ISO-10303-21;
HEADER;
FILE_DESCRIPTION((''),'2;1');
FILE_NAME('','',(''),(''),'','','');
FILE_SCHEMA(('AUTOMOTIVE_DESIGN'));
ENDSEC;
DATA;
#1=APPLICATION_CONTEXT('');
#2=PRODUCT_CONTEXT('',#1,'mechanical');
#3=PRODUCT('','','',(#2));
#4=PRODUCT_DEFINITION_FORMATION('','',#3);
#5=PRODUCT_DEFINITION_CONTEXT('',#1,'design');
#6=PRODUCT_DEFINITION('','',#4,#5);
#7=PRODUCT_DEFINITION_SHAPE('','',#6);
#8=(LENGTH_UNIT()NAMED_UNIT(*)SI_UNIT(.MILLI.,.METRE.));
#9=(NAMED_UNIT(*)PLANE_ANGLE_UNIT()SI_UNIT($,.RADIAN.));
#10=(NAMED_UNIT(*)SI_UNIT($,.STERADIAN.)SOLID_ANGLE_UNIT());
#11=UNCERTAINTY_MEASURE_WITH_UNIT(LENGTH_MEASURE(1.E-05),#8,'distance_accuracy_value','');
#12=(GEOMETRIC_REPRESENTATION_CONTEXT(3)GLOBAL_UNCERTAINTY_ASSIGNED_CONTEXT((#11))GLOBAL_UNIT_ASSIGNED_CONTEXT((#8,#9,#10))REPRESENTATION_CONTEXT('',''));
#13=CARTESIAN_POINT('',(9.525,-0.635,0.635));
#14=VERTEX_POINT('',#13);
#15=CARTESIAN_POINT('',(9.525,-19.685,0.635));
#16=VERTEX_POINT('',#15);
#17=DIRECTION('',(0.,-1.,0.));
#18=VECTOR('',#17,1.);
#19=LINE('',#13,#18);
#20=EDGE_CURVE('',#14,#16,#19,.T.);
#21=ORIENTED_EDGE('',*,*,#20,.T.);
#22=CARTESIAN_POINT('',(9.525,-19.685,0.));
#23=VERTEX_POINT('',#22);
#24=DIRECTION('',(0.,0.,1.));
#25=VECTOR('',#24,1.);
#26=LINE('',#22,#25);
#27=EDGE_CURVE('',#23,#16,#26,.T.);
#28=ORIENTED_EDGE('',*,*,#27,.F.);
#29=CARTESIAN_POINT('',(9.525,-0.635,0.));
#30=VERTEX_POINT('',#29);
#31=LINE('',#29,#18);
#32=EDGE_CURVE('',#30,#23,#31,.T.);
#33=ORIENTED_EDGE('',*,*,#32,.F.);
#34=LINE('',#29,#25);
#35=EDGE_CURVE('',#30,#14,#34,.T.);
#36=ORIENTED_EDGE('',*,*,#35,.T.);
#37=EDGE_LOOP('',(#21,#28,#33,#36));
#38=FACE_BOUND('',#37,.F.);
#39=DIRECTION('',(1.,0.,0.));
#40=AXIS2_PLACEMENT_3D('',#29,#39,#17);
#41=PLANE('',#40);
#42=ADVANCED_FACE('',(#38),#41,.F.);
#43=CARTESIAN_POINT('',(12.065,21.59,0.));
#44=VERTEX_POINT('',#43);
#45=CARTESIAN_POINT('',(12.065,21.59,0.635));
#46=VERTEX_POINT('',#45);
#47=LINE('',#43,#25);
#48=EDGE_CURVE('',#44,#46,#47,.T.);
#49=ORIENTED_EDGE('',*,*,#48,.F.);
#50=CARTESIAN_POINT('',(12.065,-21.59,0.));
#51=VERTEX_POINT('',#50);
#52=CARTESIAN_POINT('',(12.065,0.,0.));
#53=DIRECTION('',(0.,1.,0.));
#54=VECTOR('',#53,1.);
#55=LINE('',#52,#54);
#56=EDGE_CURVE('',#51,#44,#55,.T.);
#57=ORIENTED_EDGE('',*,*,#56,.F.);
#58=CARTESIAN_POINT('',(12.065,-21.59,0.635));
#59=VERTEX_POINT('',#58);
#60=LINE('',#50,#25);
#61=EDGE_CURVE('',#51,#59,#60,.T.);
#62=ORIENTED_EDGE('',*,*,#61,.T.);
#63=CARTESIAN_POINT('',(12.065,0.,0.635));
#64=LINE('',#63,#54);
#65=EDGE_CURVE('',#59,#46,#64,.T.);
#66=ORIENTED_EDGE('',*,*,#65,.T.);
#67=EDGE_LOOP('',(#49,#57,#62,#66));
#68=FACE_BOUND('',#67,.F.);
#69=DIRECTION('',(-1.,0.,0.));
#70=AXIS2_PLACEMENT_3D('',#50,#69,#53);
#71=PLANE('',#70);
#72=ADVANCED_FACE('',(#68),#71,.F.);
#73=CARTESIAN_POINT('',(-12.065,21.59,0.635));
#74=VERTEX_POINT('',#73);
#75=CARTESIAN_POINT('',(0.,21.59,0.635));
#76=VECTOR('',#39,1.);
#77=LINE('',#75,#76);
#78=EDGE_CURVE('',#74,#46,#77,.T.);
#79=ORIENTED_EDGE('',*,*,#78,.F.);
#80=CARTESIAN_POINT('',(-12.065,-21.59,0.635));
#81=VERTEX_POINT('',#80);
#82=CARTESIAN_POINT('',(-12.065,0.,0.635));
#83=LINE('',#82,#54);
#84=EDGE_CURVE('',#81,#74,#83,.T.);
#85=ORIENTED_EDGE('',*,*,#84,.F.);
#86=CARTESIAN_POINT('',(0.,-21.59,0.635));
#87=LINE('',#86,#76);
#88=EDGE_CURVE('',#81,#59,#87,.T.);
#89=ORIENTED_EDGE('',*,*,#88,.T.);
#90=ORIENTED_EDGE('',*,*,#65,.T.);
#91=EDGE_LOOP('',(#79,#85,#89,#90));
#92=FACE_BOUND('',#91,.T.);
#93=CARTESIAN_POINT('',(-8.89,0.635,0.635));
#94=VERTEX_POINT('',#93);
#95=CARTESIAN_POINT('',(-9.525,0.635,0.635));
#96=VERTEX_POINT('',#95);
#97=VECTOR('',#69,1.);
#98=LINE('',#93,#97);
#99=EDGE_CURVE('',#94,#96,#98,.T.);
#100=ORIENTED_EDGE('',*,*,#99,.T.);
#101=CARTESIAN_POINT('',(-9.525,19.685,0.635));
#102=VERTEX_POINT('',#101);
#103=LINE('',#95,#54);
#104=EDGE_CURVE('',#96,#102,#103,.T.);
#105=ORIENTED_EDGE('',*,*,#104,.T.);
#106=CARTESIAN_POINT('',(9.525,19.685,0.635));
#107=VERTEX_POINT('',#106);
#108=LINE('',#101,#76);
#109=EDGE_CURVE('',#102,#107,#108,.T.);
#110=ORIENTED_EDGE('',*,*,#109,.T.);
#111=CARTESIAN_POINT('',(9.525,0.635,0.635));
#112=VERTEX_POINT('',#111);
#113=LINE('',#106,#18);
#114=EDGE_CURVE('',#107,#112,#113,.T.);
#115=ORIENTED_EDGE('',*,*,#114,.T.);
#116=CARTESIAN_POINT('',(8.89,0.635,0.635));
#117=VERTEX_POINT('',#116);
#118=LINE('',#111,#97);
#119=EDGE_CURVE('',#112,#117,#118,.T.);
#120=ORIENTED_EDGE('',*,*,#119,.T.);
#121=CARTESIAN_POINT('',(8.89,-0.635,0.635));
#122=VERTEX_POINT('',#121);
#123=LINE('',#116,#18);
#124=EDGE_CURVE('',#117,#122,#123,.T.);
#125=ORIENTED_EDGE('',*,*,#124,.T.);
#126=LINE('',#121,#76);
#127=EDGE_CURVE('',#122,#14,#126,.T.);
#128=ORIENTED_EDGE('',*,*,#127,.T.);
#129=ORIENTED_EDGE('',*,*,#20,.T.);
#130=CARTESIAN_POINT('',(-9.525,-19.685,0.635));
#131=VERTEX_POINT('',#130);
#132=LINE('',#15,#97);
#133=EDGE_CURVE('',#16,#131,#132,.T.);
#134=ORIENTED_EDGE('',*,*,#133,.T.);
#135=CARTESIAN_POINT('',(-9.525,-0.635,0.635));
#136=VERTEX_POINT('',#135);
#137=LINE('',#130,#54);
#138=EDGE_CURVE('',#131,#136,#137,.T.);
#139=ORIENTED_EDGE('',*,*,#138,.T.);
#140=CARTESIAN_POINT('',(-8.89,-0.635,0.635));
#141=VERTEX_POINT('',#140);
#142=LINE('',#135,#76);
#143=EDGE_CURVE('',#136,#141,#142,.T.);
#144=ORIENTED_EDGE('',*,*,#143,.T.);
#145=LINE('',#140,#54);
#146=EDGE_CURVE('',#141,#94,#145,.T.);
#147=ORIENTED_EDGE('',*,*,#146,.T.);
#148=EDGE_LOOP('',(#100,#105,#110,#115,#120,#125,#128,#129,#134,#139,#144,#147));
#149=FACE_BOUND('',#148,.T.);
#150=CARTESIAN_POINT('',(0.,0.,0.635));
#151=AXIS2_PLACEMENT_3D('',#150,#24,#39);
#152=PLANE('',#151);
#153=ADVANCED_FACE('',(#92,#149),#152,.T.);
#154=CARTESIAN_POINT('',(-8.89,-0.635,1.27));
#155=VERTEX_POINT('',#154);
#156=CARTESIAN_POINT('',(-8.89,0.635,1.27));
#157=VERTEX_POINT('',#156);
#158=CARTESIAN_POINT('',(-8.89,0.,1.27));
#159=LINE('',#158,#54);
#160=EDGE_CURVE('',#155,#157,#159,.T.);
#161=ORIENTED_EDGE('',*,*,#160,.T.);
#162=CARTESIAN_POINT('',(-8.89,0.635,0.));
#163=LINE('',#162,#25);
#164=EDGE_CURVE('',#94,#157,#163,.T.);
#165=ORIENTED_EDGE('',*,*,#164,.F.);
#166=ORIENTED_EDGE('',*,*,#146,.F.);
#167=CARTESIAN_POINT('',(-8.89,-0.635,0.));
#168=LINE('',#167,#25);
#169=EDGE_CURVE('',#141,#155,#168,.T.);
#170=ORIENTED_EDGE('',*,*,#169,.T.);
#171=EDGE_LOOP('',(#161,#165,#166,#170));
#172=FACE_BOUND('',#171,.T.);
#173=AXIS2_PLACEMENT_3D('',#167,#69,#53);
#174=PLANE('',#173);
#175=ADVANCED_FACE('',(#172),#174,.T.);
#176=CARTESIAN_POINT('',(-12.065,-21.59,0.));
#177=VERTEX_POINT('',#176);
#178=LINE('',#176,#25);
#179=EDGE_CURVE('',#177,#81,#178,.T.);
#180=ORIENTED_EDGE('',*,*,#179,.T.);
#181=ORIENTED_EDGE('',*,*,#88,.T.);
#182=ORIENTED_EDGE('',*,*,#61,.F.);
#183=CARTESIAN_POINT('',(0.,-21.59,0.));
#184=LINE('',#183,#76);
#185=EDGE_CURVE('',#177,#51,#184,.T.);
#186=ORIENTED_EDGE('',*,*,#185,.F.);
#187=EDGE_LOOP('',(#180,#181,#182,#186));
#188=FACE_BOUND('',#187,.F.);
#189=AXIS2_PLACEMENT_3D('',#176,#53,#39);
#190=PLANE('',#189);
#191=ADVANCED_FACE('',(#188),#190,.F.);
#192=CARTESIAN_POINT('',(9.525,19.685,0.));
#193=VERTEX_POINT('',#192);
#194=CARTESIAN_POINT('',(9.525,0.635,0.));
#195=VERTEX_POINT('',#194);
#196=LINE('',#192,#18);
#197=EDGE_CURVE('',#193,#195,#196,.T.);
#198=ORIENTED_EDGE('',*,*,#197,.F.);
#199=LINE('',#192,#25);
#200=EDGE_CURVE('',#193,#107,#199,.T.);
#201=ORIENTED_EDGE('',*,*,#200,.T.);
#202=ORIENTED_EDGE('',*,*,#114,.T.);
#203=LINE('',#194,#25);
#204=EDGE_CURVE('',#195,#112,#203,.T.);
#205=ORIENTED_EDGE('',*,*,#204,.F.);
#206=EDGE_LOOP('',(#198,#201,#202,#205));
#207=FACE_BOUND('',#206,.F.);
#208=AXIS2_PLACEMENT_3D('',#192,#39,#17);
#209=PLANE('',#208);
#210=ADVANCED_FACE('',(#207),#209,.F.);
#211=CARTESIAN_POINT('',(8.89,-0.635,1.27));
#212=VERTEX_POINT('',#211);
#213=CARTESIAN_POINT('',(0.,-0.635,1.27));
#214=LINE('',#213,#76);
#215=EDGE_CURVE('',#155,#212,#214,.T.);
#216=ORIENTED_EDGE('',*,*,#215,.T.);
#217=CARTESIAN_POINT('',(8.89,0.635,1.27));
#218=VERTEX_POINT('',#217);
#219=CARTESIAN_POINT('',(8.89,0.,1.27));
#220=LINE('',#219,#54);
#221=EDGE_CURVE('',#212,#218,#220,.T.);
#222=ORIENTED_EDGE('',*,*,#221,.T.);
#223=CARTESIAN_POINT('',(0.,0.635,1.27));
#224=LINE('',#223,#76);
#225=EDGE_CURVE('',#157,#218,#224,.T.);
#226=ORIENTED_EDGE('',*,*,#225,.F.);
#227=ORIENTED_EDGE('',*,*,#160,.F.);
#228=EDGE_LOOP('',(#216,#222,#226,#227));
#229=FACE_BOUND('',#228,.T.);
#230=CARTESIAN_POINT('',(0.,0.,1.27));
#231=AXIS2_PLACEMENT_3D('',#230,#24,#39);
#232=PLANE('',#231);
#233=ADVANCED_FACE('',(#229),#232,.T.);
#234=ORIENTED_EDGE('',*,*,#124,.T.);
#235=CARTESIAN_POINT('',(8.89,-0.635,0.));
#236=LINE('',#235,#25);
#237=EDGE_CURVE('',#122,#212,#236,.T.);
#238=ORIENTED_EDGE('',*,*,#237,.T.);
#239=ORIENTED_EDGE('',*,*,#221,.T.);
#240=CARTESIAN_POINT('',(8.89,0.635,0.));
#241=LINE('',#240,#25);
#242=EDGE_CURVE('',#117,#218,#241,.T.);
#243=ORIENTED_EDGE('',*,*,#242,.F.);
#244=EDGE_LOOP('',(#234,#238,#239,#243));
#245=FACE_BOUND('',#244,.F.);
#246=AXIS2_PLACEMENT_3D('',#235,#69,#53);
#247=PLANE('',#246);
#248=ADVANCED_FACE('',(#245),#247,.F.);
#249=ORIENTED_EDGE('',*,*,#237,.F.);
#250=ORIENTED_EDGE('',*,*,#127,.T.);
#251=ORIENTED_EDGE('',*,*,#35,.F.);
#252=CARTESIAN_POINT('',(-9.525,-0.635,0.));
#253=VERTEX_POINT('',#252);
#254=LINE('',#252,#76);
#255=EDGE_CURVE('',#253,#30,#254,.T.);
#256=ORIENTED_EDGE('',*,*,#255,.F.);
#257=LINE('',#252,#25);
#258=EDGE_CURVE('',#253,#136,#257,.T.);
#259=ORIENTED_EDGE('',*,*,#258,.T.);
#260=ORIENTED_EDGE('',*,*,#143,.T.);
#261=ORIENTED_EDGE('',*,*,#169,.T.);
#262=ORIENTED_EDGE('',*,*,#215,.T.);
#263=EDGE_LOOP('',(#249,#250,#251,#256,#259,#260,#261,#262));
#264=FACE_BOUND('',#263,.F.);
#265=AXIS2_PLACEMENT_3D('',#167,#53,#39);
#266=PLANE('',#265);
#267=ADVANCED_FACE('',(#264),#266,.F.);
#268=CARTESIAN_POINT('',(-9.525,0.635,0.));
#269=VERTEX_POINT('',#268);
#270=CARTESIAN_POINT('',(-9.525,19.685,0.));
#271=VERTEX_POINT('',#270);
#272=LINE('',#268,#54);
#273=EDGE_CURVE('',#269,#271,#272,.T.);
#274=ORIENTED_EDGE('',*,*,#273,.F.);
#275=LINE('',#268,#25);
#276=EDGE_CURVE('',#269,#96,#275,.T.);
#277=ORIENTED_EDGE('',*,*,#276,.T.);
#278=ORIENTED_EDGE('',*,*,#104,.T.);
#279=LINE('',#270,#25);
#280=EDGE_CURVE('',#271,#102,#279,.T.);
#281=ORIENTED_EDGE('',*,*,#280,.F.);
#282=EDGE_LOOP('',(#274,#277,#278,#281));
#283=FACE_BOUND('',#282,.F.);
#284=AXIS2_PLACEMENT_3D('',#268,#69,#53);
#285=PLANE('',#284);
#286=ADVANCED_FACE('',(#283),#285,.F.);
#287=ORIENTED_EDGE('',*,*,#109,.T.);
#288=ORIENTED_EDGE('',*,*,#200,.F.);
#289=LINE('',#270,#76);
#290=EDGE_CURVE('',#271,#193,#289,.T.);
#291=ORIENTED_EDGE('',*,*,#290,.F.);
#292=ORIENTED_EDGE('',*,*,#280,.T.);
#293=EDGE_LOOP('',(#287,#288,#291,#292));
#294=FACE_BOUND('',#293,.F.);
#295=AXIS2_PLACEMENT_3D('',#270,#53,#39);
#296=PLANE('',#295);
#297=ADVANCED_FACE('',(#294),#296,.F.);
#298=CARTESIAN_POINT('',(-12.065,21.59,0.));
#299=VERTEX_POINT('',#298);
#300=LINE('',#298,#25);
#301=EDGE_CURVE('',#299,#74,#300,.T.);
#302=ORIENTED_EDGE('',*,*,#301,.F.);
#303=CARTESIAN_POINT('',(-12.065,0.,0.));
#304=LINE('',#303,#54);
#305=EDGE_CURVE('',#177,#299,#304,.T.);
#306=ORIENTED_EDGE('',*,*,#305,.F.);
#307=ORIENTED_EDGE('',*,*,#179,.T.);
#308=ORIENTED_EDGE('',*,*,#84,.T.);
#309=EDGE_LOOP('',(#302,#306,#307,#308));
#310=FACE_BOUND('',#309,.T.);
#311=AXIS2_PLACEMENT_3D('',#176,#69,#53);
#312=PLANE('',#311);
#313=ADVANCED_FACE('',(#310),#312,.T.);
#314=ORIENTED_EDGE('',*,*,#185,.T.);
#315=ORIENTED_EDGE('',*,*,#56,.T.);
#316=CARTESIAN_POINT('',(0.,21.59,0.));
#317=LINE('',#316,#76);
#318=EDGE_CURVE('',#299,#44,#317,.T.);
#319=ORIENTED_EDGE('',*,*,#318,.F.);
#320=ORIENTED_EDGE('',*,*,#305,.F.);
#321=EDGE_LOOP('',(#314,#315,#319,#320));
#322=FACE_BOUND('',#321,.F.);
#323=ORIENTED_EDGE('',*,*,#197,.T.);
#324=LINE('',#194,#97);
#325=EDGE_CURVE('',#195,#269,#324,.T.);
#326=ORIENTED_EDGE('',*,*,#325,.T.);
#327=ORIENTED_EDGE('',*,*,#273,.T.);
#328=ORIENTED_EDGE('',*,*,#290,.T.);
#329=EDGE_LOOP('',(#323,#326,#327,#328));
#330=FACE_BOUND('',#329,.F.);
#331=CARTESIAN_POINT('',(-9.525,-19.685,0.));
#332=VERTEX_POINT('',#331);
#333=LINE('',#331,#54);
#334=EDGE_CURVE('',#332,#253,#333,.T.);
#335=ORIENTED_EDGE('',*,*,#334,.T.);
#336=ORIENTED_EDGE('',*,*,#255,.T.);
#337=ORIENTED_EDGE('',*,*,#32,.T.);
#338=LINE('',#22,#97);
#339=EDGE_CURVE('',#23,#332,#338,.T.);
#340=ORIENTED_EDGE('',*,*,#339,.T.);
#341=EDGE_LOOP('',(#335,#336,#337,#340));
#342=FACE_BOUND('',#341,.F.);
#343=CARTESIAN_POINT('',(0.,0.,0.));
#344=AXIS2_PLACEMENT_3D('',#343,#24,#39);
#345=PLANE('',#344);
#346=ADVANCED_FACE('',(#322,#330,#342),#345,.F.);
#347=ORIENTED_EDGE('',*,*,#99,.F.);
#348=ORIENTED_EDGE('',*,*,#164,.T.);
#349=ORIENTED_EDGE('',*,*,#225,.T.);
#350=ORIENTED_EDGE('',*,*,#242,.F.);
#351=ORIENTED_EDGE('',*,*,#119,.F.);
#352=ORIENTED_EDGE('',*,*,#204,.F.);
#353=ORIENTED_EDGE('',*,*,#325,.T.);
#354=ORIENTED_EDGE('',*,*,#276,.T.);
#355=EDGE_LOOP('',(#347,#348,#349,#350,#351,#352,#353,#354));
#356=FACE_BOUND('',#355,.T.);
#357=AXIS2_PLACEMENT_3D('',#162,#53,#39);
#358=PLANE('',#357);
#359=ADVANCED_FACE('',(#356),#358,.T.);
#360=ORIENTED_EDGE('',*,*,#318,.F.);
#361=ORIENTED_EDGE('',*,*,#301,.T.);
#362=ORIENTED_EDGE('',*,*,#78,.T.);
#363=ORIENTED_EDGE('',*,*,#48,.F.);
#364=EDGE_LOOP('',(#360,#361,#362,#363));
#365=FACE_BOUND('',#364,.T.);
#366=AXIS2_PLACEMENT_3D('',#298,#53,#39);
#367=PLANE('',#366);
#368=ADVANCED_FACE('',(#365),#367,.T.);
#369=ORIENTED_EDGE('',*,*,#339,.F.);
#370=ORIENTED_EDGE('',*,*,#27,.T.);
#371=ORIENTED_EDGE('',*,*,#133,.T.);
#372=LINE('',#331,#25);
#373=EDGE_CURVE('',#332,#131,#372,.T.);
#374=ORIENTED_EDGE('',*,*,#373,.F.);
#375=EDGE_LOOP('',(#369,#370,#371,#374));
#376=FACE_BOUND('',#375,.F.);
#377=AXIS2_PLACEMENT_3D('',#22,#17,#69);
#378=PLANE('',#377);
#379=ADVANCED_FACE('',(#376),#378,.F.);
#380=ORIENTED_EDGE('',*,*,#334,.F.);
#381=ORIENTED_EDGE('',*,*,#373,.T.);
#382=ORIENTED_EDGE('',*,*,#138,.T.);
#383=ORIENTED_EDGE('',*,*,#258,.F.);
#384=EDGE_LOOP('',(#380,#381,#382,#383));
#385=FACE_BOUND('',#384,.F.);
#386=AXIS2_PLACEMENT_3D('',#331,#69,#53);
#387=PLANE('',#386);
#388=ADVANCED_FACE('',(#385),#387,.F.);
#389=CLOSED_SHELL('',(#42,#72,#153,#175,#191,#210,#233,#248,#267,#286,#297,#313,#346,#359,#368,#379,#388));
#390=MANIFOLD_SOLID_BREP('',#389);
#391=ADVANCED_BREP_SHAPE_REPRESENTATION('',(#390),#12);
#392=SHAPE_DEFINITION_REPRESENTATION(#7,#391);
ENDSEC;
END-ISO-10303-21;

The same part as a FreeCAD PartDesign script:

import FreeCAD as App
import Part
import Sketcher

V = App.Vector
Q = App.Units.Quantity


def add_polygon(sketch, points):
    """Adds a closed chain of lines whose ends are joined by coincident constraints."""
    first, n = sketch.GeometryCount, len(points)
    for a, b in zip(points, points[1:] + points[:1]):
        sketch.addGeometry(Part.LineSegment(App.Vector(*a, 0), App.Vector(*b, 0)), False)
    for i in range(n):
        sketch.addConstraint(Sketcher.Constraint("Coincident", first + i, 2, first + (i + 1) % n, 1))

doc = App.newDocument("Part")
params = doc.addObject("Spreadsheet::Sheet", "Params")
for row, (alias, value) in enumerate([
    ("sketch1_height", "1.7 in"),
    ("sketch1_width", "0.95 in"),
    ("sketch1_width2", "0.75 in"),
    ("sketch1_height2", "0.05 in"),
    ("pad1_length", "0.025 in"),
    ("sketch2_width", "0.7 in"),
    ("sketch2_height", "0.05 in"),
    ("pad2_length", "0.05 in"),
], start=1):
    params.set(f"A{row}", alias)
    params.set(f"B{row}", "=" + value)
    params.setAlias(f"B{row}", alias)

body = doc.addObject("PartDesign::Body", "Body")

# Sketch on XY plane
sketch1 = body.newObject("Sketcher::SketchObject", "Sketch")
sketch1.AttachmentSupport = (doc.getObject("XY_Plane"), [""])
sketch1.MapMode = "FlatFace"
add_polygon(sketch1, [(-12.1, 21.6), (-12.1, -21.6), (12.1, -21.6), (12.1, 21.6)])  # lines 0-3
add_polygon(sketch1, [(8.9, 0.6), (8.9, -0.6), (9.5, -0.6), (9.5, -19.7), (-9.5, -19.7), (-9.5, -0.6), (-8.9, -0.6), (-8.9, 0.6), (-9.5, 0.6), (-9.5, 19.7), (9.5, 19.7), (9.5, 0.6)])  # lines 4-15
sketch1.addConstraint([
    Sketcher.Constraint("Vertical", 0),
    Sketcher.Constraint("Horizontal", 1),
    Sketcher.Constraint("Vertical", 2),
    Sketcher.Constraint("Horizontal", 3),
    Sketcher.Constraint("Vertical", 4),
    Sketcher.Constraint("Horizontal", 5),
    Sketcher.Constraint("Vertical", 6),
    Sketcher.Constraint("Horizontal", 7),
    Sketcher.Constraint("Vertical", 8),
    Sketcher.Constraint("Horizontal", 9),
    Sketcher.Constraint("Vertical", 10),
    Sketcher.Constraint("Horizontal", 11),
    Sketcher.Constraint("Vertical", 12),
    Sketcher.Constraint("Horizontal", 13),
    Sketcher.Constraint("Vertical", 14),
    Sketcher.Constraint("Horizontal", 15),
    Sketcher.Constraint("Symmetric", 0, 2, 2, 2, -1, 1),
    Sketcher.Constraint("Symmetric", 4, 2, 10, 2, -1, 1),
    Sketcher.Constraint("Symmetric", 6, 2, 12, 2, -1, 1),
    Sketcher.Constraint("Symmetric", 8, 2, 14, 2, -1, 1),
    Sketcher.Constraint("Symmetric", 5, 2, 8, 2, -2),
    Sketcher.Constraint("Equal", 13, 6),
    Sketcher.Constraint("DistanceY", 0, 2, 0, 1, Q("1.7 in")),
    Sketcher.Constraint("DistanceX", 1, 1, 1, 2, Q("0.95 in")),
    Sketcher.Constraint("DistanceX", 7, 2, 7, 1, Q("0.75 in")),
    Sketcher.Constraint("DistanceY", 4, 2, 4, 1, Q("0.05 in")),
    Sketcher.Constraint("DistanceX", 9, 2, 4, 2, Q("0.7 in")),
])
sketch1.setExpression("Constraints[38]", "Params.sketch1_height")
sketch1.setExpression("Constraints[39]", "Params.sketch1_width")
sketch1.setExpression("Constraints[40]", "Params.sketch1_width2")
sketch1.setExpression("Constraints[41]", "Params.sketch1_height2")
pad1 = body.newObject("PartDesign::Pad", "Pad")
pad1.Profile = sketch1
pad1.setExpression("Length", "Params.pad1_length")

# Sketch on XY plane
sketch2 = body.newObject("Sketcher::SketchObject", "Sketch001")
sketch2.AttachmentSupport = (doc.getObject("XY_Plane"), [""])
sketch2.MapMode = "FlatFace"
add_polygon(sketch2, [(-8.9, 0.6), (-8.9, -0.6), (8.9, -0.6), (8.9, 0.6)])  # lines 0-3
sketch2.addConstraint([
    Sketcher.Constraint("Vertical", 0),
    Sketcher.Constraint("Horizontal", 1),
    Sketcher.Constraint("Vertical", 2),
    Sketcher.Constraint("Horizontal", 3),
    Sketcher.Constraint("Symmetric", 0, 2, 2, 2, -1, 1),
    Sketcher.Constraint("DistanceX", 1, 1, 1, 2, Q("0.7 in")),
    Sketcher.Constraint("DistanceY", 0, 2, 0, 1, Q("0.05 in")),
])
sketch2.setExpression("Constraints[9]", "Params.sketch2_width")
sketch2.setExpression("Constraints[10]", "Params.sketch2_height")
pad2 = body.newObject("PartDesign::Pad", "Pad001")
pad2.Profile = sketch2
pad2.setExpression("Length", "Params.pad2_length")

doc.recompute()
